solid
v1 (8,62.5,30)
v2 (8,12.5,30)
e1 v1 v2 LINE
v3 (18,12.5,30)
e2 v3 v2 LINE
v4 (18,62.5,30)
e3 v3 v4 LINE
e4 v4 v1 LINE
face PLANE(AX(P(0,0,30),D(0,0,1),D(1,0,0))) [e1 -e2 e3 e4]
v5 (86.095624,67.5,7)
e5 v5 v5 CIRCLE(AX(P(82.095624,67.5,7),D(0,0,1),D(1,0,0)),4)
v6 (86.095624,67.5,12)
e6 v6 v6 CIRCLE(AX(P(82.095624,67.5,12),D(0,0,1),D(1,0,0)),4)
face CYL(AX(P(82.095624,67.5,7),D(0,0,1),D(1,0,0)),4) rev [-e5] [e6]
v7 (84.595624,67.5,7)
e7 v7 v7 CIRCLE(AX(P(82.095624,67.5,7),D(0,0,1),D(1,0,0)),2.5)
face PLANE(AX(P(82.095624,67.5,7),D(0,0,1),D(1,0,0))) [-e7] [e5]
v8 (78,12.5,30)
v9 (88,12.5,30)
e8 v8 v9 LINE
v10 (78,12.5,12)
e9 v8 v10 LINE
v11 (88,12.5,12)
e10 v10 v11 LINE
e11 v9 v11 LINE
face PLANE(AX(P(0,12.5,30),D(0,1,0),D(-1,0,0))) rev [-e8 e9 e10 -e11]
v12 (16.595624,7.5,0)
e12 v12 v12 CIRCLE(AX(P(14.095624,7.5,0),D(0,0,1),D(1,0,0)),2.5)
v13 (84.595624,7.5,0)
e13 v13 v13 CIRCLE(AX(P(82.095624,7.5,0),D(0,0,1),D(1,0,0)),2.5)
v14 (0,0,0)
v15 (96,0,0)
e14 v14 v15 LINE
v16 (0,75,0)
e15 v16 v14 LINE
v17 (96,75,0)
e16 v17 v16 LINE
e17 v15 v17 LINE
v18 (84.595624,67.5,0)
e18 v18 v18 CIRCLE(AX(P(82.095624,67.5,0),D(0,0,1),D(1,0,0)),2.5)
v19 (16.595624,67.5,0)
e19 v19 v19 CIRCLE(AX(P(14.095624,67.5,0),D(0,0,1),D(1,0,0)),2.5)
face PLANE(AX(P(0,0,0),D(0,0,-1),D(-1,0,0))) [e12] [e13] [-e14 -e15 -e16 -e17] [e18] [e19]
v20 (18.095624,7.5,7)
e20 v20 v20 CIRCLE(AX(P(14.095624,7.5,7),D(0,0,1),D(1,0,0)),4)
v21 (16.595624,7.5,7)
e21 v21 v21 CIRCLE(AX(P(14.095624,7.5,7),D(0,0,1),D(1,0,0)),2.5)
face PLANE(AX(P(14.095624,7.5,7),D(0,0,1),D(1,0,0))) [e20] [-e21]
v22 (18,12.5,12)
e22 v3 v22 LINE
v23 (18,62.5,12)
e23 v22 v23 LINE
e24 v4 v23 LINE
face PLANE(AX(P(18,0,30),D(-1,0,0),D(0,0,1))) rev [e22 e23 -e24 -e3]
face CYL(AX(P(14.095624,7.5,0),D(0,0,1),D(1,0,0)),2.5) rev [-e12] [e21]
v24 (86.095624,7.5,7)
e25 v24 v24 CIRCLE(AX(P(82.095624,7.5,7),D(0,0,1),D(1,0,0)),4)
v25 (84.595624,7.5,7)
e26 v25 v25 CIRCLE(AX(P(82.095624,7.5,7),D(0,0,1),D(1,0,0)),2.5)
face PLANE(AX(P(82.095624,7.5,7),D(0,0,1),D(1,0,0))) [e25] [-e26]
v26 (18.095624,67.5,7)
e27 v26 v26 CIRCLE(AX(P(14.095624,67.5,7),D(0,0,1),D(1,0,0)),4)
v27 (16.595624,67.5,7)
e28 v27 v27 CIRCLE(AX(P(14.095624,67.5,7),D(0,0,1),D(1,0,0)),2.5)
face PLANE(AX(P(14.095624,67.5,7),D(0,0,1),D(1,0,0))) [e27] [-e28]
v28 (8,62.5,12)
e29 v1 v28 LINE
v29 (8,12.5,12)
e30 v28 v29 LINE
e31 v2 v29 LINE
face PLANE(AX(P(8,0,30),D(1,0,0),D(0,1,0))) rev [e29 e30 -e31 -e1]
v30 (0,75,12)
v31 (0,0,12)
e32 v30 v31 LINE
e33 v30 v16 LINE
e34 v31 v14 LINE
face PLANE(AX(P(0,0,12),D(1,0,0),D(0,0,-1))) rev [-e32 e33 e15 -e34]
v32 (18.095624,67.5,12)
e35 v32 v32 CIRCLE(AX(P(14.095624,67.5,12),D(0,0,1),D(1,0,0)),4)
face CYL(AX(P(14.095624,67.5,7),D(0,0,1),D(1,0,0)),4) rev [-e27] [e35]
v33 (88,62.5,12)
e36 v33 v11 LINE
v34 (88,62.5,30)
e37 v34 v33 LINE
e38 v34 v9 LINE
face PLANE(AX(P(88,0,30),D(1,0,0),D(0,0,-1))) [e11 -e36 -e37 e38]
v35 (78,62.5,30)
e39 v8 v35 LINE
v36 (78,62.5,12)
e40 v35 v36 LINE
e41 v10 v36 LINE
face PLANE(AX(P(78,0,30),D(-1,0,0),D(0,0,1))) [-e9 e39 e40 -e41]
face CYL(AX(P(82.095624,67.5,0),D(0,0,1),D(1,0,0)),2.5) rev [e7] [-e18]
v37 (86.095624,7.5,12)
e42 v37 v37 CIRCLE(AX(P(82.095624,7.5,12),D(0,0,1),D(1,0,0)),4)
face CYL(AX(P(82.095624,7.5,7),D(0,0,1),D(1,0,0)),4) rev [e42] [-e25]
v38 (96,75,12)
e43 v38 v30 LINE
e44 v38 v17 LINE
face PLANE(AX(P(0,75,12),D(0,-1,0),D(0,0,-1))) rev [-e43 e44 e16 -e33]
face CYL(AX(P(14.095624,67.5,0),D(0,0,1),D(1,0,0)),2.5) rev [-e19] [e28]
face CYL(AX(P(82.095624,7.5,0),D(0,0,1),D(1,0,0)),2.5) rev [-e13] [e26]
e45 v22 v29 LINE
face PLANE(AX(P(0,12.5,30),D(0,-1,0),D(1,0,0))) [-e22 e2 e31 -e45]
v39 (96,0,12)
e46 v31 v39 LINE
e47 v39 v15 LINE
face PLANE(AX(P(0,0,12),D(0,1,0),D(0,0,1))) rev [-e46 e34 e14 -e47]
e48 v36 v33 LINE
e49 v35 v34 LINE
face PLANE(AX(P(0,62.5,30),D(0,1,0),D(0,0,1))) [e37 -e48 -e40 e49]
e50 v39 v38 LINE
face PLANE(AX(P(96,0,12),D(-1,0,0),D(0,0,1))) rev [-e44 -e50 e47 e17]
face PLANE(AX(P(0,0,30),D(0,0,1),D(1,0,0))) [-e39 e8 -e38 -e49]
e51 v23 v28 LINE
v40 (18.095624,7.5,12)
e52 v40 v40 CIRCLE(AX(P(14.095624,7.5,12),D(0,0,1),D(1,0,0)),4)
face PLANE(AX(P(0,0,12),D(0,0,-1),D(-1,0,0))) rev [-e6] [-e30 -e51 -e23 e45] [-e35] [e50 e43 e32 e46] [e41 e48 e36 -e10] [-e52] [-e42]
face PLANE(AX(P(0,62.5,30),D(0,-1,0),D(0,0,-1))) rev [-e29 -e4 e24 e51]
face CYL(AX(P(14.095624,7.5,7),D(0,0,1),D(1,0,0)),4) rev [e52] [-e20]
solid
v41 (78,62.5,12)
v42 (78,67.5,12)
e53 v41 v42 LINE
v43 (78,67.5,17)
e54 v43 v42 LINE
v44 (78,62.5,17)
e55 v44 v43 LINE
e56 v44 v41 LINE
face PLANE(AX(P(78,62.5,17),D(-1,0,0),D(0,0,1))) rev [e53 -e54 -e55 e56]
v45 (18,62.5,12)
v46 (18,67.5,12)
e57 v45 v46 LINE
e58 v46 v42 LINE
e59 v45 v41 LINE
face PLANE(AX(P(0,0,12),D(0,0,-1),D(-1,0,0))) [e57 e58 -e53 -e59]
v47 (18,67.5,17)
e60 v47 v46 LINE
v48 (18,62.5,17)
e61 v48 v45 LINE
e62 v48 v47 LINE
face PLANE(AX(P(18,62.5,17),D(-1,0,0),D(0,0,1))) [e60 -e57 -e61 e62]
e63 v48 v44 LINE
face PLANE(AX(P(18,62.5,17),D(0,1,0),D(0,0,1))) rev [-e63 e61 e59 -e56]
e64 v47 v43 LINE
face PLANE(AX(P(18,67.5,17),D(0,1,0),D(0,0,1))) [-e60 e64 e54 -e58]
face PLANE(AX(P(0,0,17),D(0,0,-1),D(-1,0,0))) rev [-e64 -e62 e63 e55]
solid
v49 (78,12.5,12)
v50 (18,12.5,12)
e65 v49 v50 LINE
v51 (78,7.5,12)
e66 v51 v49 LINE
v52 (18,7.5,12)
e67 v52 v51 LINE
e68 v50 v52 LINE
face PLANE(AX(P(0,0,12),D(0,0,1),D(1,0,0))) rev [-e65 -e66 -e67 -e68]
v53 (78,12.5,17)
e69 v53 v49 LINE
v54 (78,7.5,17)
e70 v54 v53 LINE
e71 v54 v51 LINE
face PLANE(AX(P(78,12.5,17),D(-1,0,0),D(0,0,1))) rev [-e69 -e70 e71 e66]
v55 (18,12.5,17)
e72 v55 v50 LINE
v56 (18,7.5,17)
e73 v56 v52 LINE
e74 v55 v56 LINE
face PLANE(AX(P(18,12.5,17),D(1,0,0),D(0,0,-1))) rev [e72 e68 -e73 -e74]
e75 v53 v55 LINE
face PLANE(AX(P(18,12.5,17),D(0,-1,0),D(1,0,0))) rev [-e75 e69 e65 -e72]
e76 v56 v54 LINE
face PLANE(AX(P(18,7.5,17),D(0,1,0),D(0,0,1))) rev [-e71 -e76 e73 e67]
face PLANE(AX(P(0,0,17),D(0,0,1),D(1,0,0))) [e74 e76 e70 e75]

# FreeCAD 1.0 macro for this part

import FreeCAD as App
import Part
import Sketcher

V = App.Vector
Q = App.Units.Quantity

doc = App.newDocument("Part")
body = doc.addObject("PartDesign::Body", "Body")

# Sketch on XY plane
sketch1 = doc.addObject("Sketcher::SketchObject", "Sketch")
body.addObject(sketch1)
sketch1.AttachmentSupport = (doc.XY_Plane, [""])
sketch1.MapMode = "FlatFace"
sketch1.addGeometry(Part.LineSegment(V(0, 75, 0), V(0, 0, 0)), False)
sketch1.addGeometry(Part.LineSegment(V(0, 0, 0), V(96, 0, 0)), False)
sketch1.addGeometry(Part.LineSegment(V(96, 0, 0), V(96, 75, 0)), False)
sketch1.addGeometry(Part.LineSegment(V(96, 75, 0), V(0, 75, 0)), False)
sketch1.addConstraint(Sketcher.Constraint("Coincident", 0, 2, 1, 1))
sketch1.addConstraint(Sketcher.Constraint("Coincident", 1, 2, 2, 1))
sketch1.addConstraint(Sketcher.Constraint("Coincident", 2, 2, 3, 1))
sketch1.addConstraint(Sketcher.Constraint("Coincident", 3, 2, 0, 1))
sketch1.addConstraint(Sketcher.Constraint("Vertical", 0))
sketch1.addConstraint(Sketcher.Constraint("Horizontal", 1))
sketch1.addConstraint(Sketcher.Constraint("Vertical", 2))
sketch1.addConstraint(Sketcher.Constraint("Horizontal", 3))
sketch1.addConstraint(Sketcher.Constraint("Coincident", 0, 2, -1, 1))
sketch1.addConstraint(Sketcher.Constraint("DistanceX", 1, 1, 1, 2, Q("96 mm")))
sketch1.addConstraint(Sketcher.Constraint("DistanceY", 0, 2, 0, 1, Q("75 mm")))
pad1 = doc.addObject("PartDesign::Pad", "Pad")
body.addObject(pad1)
pad1.Profile = sketch1
pad1.Length = 12

# Sketch on XY plane
sketch2 = doc.addObject("Sketcher::SketchObject", "Sketch001")
body.addObject(sketch2)
sketch2.AttachmentSupport = (doc.XY_Plane, [""])
sketch2.MapMode = "FlatFace"
sketch2.AttachmentOffset = App.Placement(V(0, 0, 12), App.Rotation())
sketch2.addGeometry(Part.Circle(V(14.1, 67.5, 0), V(0, 0, 1), 4), False)
sketch2.addGeometry(Part.Circle(V(82.1, 67.5, 0), V(0, 0, 1), 4), False)
sketch2.addGeometry(Part.Circle(V(82.1, 7.5, 0), V(0, 0, 1), 4), False)
sketch2.addGeometry(Part.Circle(V(14.1, 7.5, 0), V(0, 0, 1), 4), False)
sketch2.addConstraint(Sketcher.Constraint("Equal", 0, 1))
sketch2.addConstraint(Sketcher.Constraint("Equal", 1, 2))
sketch2.addConstraint(Sketcher.Constraint("Equal", 2, 3))
sketch2.addConstraint(Sketcher.Constraint("Horizontal", 0, 3, 1, 3))
sketch2.addConstraint(Sketcher.Constraint("Horizontal", 2, 3, 3, 3))
sketch2.addConstraint(Sketcher.Constraint("Vertical", 1, 3, 2, 3))
sketch2.addConstraint(Sketcher.Constraint("Vertical", 0, 3, 3, 3))
sketch2.addConstraint(Sketcher.Constraint("Diameter", 0, Q("8 mm")))
sketch2.addConstraint(Sketcher.Constraint("DistanceX", 0, 3, 1, 3, Q("68 mm")))
sketch2.addConstraint(Sketcher.Constraint("DistanceY", 2, 3, 1, 3, Q("60 mm")))
sketch2.addConstraint(Sketcher.Constraint("DistanceY", -1, 1, 0, 3, Q("67.5 mm")))
sketch2.addConstraint(Sketcher.Constraint("DistanceX", -1, 1, 0, 3, Q("14.095624 mm")))
pocket1 = doc.addObject("PartDesign::Pocket", "Pocket")
body.addObject(pocket1)
pocket1.Profile = sketch2
pocket1.Length = 5

# Sketch on XY plane
sketch3 = doc.addObject("Sketcher::SketchObject", "Sketch002")
body.addObject(sketch3)
sketch3.AttachmentSupport = (doc.XY_Plane, [""])
sketch3.MapMode = "FlatFace"
sketch3.AttachmentOffset = App.Placement(V(0, 0, 12), App.Rotation())
sketch3.addGeometry(Part.Circle(V(14.1, 67.5, 0), V(0, 0, 1), 2.5), False)
sketch3.addGeometry(Part.Circle(V(82.1, 67.5, 0), V(0, 0, 1), 2.5), False)
sketch3.addGeometry(Part.Circle(V(82.1, 7.5, 0), V(0, 0, 1), 2.5), False)
sketch3.addGeometry(Part.Circle(V(14.1, 7.5, 0), V(0, 0, 1), 2.5), False)
sketch3.addConstraint(Sketcher.Constraint("Equal", 0, 1))
sketch3.addConstraint(Sketcher.Constraint("Equal", 1, 2))
sketch3.addConstraint(Sketcher.Constraint("Equal", 2, 3))
sketch3.addConstraint(Sketcher.Constraint("Horizontal", 0, 3, 1, 3))
sketch3.addConstraint(Sketcher.Constraint("Horizontal", 2, 3, 3, 3))
sketch3.addConstraint(Sketcher.Constraint("Vertical", 1, 3, 2, 3))
sketch3.addConstraint(Sketcher.Constraint("Vertical", 0, 3, 3, 3))
sketch3.addConstraint(Sketcher.Constraint("Diameter", 0, Q("5 mm")))
sketch3.addConstraint(Sketcher.Constraint("DistanceX", 0, 3, 1, 3, Q("68 mm")))
sketch3.addConstraint(Sketcher.Constraint("DistanceY", 2, 3, 1, 3, Q("60 mm")))
sketch3.addConstraint(Sketcher.Constraint("DistanceY", -1, 1, 0, 3, Q("67.5 mm")))
sketch3.addConstraint(Sketcher.Constraint("DistanceX", -1, 1, 0, 3, Q("14.095624 mm")))
pocket2 = doc.addObject("PartDesign::Pocket", "Pocket001")
body.addObject(pocket2)
pocket2.Profile = sketch3
pocket2.Type = "ThroughAll"

# Sketch on XY plane
sketch4 = doc.addObject("Sketcher::SketchObject", "Sketch003")
body.addObject(sketch4)
sketch4.AttachmentSupport = (doc.XY_Plane, [""])
sketch4.MapMode = "FlatFace"
sketch4.AttachmentOffset = App.Placement(V(0, 0, 12), App.Rotation())
sketch4.addGeometry(Part.LineSegment(V(8, 62, 0), V(8, 12, 0)), False)
sketch4.addGeometry(Part.LineSegment(V(8, 12, 0), V(18, 12, 0)), False)
sketch4.addGeometry(Part.LineSegment(V(18, 12, 0), V(18, 62, 0)), False)
sketch4.addGeometry(Part.LineSegment(V(18, 62, 0), V(8, 62, 0)), False)
sketch4.addGeometry(Part.LineSegment(V(78, 62, 0), V(78, 12, 0)), False)
sketch4.addGeometry(Part.LineSegment(V(78, 12, 0), V(88, 12, 0)), False)
sketch4.addGeometry(Part.LineSegment(V(88, 12, 0), V(88, 62, 0)), False)
sketch4.addGeometry(Part.LineSegment(V(88, 62, 0), V(78, 62, 0)), False)
sketch4.addConstraint(Sketcher.Constraint("Coincident", 0, 2, 1, 1))
sketch4.addConstraint(Sketcher.Constraint("Coincident", 1, 2, 2, 1))
sketch4.addConstraint(Sketcher.Constraint("Coincident", 2, 2, 3, 1))
sketch4.addConstraint(Sketcher.Constraint("Coincident", 3, 2, 0, 1))
sketch4.addConstraint(Sketcher.Constraint("Coincident", 4, 2, 5, 1))
sketch4.addConstraint(Sketcher.Constraint("Coincident", 5, 2, 6, 1))
sketch4.addConstraint(Sketcher.Constraint("Coincident", 6, 2, 7, 1))
sketch4.addConstraint(Sketcher.Constraint("Coincident", 7, 2, 4, 1))
sketch4.addConstraint(Sketcher.Constraint("Vertical", 0))
sketch4.addConstraint(Sketcher.Constraint("Horizontal", 1))
sketch4.addConstraint(Sketcher.Constraint("Vertical", 2))
sketch4.addConstraint(Sketcher.Constraint("Horizontal", 3))
sketch4.addConstraint(Sketcher.Constraint("Vertical", 4))
sketch4.addConstraint(Sketcher.Constraint("Horizontal", 5))
sketch4.addConstraint(Sketcher.Constraint("Vertical", 6))
sketch4.addConstraint(Sketcher.Constraint("Horizontal", 7))
sketch4.addConstraint(Sketcher.Constraint("Horizontal", 1, 2, 4, 2))
sketch4.addConstraint(Sketcher.Constraint("Horizontal", 3, 2, 6, 2))
sketch4.addConstraint(Sketcher.Constraint("Equal", 3, 5))
sketch4.addConstraint(Sketcher.Constraint("DistanceX", 1, 1, 1, 2, Q("10 mm")))
sketch4.addConstraint(Sketcher.Constraint("DistanceY", 0, 2, 0, 1, Q("50 mm")))
sketch4.addConstraint(Sketcher.Constraint("DistanceX", -1, 1, 0, 2, Q("8 mm")))
sketch4.addConstraint(Sketcher.Constraint("DistanceX", -1, 1, 4, 2, Q("78 mm")))
sketch4.addConstraint(Sketcher.Constraint("DistanceY", -1, 1, 0, 2, Q("12.5 mm")))
pad2 = doc.addObject("PartDesign::Pad", "Pad001")
body.addObject(pad2)
pad2.Profile = sketch4
pad2.Length = 18
body2 = doc.addObject("PartDesign::Body", "Body001")

# Sketch on XY plane
sketch5 = doc.addObject("Sketcher::SketchObject", "Sketch004")
body2.addObject(sketch5)
sketch5.AttachmentSupport = (doc.getObject("XY_Plane001"), [""])
sketch5.MapMode = "FlatFace"
sketch5.AttachmentOffset = App.Placement(V(0, 0, 12), App.Rotation())
sketch5.addGeometry(Part.LineSegment(V(18, 68, 0), V(18, 62, 0)), False)
sketch5.addGeometry(Part.LineSegment(V(18, 62, 0), V(78, 62, 0)), False)
sketch5.addGeometry(Part.LineSegment(V(78, 62, 0), V(78, 68, 0)), False)
sketch5.addGeometry(Part.LineSegment(V(78, 68, 0), V(18, 68, 0)), False)
sketch5.addConstraint(Sketcher.Constraint("Coincident", 0, 2, 1, 1))
sketch5.addConstraint(Sketcher.Constraint("Coincident", 1, 2, 2, 1))
sketch5.addConstraint(Sketcher.Constraint("Coincident", 2, 2, 3, 1))
sketch5.addConstraint(Sketcher.Constraint("Coincident", 3, 2, 0, 1))
sketch5.addConstraint(Sketcher.Constraint("Vertical", 0))
sketch5.addConstraint(Sketcher.Constraint("Horizontal", 1))
sketch5.addConstraint(Sketcher.Constraint("Vertical", 2))
sketch5.addConstraint(Sketcher.Constraint("Horizontal", 3))
sketch5.addConstraint(Sketcher.Constraint("DistanceX", 1, 1, 1, 2, Q("60 mm")))
sketch5.addConstraint(Sketcher.Constraint("DistanceY", 0, 2, 0, 1, Q("5 mm")))
sketch5.addConstraint(Sketcher.Constraint("DistanceX", -1, 1, 0, 2, Q("18 mm")))
sketch5.addConstraint(Sketcher.Constraint("DistanceY", -1, 1, 0, 2, Q("62.5 mm")))
pad3 = doc.addObject("PartDesign::Pad", "Pad002")
body2.addObject(pad3)
pad3.Profile = sketch5
pad3.Length = 5
body3 = doc.addObject("PartDesign::Body", "Body002")

# Sketch on XY plane
sketch6 = doc.addObject("Sketcher::SketchObject", "Sketch005")
body3.addObject(sketch6)
sketch6.AttachmentSupport = (doc.getObject("XY_Plane002"), [""])
sketch6.MapMode = "FlatFace"
sketch6.AttachmentOffset = App.Placement(V(0, 0, 12), App.Rotation())
sketch6.addGeometry(Part.LineSegment(V(18, 12, 0), V(18, 8, 0)), False)
sketch6.addGeometry(Part.LineSegment(V(18, 8, 0), V(78, 8, 0)), False)
sketch6.addGeometry(Part.LineSegment(V(78, 8, 0), V(78, 12, 0)), False)
sketch6.addGeometry(Part.LineSegment(V(78, 12, 0), V(18, 12, 0)), False)
sketch6.addConstraint(Sketcher.Constraint("Coincident", 0, 2, 1, 1))
sketch6.addConstraint(Sketcher.Constraint("Coincident", 1, 2, 2, 1))
sketch6.addConstraint(Sketcher.Constraint("Coincident", 2, 2, 3, 1))
sketch6.addConstraint(Sketcher.Constraint("Coincident", 3, 2, 0, 1))
sketch6.addConstraint(Sketcher.Constraint("Vertical", 0))
sketch6.addConstraint(Sketcher.Constraint("Horizontal", 1))
sketch6.addConstraint(Sketcher.Constraint("Vertical", 2))
sketch6.addConstraint(Sketcher.Constraint("Horizontal", 3))
sketch6.addConstraint(Sketcher.Constraint("DistanceX", 1, 1, 1, 2, Q("60 mm")))
sketch6.addConstraint(Sketcher.Constraint("DistanceY", 0, 2, 0, 1, Q("5 mm")))
sketch6.addConstraint(Sketcher.Constraint("DistanceX", -1, 1, 0, 2, Q("18 mm")))
sketch6.addConstraint(Sketcher.Constraint("DistanceY", -1, 1, 0, 2, Q("7.5 mm")))
pad4 = doc.addObject("PartDesign::Pad", "Pad003")
body3.addObject(pad4)
pad4.Profile = sketch6
pad4.Length = 5

doc.recompute()
